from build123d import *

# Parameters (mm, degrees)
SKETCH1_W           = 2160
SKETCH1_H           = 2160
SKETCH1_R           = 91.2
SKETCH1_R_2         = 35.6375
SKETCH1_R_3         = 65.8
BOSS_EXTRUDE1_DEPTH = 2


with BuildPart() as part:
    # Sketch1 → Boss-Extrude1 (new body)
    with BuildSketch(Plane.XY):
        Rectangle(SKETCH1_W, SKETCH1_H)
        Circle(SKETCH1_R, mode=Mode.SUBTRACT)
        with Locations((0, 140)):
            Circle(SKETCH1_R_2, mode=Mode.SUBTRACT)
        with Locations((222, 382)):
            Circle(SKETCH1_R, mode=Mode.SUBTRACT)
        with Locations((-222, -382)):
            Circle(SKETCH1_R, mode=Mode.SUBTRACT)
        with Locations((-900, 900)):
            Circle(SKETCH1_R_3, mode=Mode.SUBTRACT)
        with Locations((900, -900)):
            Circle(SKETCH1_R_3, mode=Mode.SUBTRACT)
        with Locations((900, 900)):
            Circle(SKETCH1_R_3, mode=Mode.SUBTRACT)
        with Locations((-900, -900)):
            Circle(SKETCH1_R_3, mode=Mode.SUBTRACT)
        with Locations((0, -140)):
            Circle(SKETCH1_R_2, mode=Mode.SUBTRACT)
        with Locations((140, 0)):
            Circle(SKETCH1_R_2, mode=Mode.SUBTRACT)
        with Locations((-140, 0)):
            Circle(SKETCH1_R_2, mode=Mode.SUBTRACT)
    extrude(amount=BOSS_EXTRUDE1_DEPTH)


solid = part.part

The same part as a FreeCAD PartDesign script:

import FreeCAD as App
import Part
import Sketcher
from FreeCAD import Vector


def add_polygon(sketch, points):
    """Adds a closed chain of lines whose ends are joined by coincident constraints."""
    first, n = sketch.GeometryCount, len(points)
    for a, b in zip(points, points[1:] + points[:1]):
        sketch.addGeometry(Part.LineSegment(App.Vector(*a, 0), App.Vector(*b, 0)), False)
    for i in range(n):
        sketch.addConstraint(Sketcher.Constraint("Coincident", first + i, 2, first + (i + 1) % n, 1))

doc = App.newDocument("Part")
body = doc.addObject("PartDesign::Body", "Body")

# Sketch on XY plane
sketch1 = body.newObject("Sketcher::SketchObject", "Sketch")
sketch1.AttachmentSupport = (doc.getObject("XY_Plane"), [""])
sketch1.MapMode = "FlatFace"
add_polygon(sketch1, [(-1080, 1080), (-1080, -1080), (1080, -1080), (1080, 1080)])  # lines 0-3
sketch1.addGeometry(Part.Circle(Vector(-900, -900, 0), Vector(0, 0, 1), 65.8), False)  # 4
sketch1.addGeometry(Part.Circle(Vector(-222, -382, 0), Vector(0, 0, 1), 91.2), False)  # 5
sketch1.addGeometry(Part.Circle(Vector(900, -900, 0), Vector(0, 0, 1), 65.8), False)  # 6
sketch1.addGeometry(Part.Circle(Vector(0, -140, 0), Vector(0, 0, 1), 35.6375), False)  # 7
sketch1.addGeometry(Part.Circle(Vector(-140, 0, 0), Vector(0, 0, 1), 35.6375), False)  # 8
sketch1.addGeometry(Part.Circle(Vector(-900, 900, 0), Vector(0, 0, 1), 65.8), False)  # 9
sketch1.addGeometry(Part.Circle(Vector(0, 0, 0), Vector(0, 0, 1), 91.2), False)  # 10
sketch1.addGeometry(Part.Circle(Vector(140, 0, 0), Vector(0, 0, 1), 35.6375), False)  # 11
sketch1.addGeometry(Part.Circle(Vector(0, 140, 0), Vector(0, 0, 1), 35.6375), False)  # 12
sketch1.addGeometry(Part.Circle(Vector(222, 382, 0), Vector(0, 0, 1), 91.2), False)  # 13
sketch1.addGeometry(Part.Circle(Vector(900, 900, 0), Vector(0, 0, 1), 65.8), False)  # 14
sketch1.addConstraint([
    Sketcher.Constraint("Vertical", 0),
    Sketcher.Constraint("Horizontal", 1),
    Sketcher.Constraint("Vertical", 2),
    Sketcher.Constraint("Horizontal", 3),
    Sketcher.Constraint("Coincident", 10, 3, -1, 1),
    Sketcher.Constraint("Equal", 4, 6),
    Sketcher.Constraint("Equal", 7, 8),
    Sketcher.Constraint("Equal", 6, 9),
    Sketcher.Constraint("Equal", 5, 10),
    Sketcher.Constraint("Equal", 8, 11),
    Sketcher.Constraint("Equal", 11, 12),
    Sketcher.Constraint("Equal", 10, 13),
    Sketcher.Constraint("Equal", 9, 14),
    Sketcher.Constraint("Symmetric", 6, 3, 9, 3, -1, 1),
    Sketcher.Constraint("Symmetric", 8, 3, 11, 3, -1, 1),
    Sketcher.Constraint("Symmetric", 7, 3, 12, 3, -1, 1),
    Sketcher.Constraint("Symmetric", 5, 3, 13, 3, -1, 1),
    Sketcher.Constraint("Symmetric", 4, 3, 14, 3, -1, 1),
    Sketcher.Constraint("Symmetric", 0, 2, 2, 2, -1, 1),
    Sketcher.Constraint("Symmetric", 4, 3, 6, 3, -2),
    Sketcher.Constraint("PointOnObject", 7, 3, -2),
    Sketcher.Constraint("PointOnObject", 8, 3, -1),
    Sketcher.Constraint("Equal", 3, 0),
    Sketcher.Constraint("Diameter", 4, 131.6),
    Sketcher.Constraint("Diameter", 5, 182.4),
    Sketcher.Constraint("DistanceX", 1, 1, 1, 2, 2160.0),
    Sketcher.Constraint("Diameter", 7, 71.275),
    Sketcher.Constraint("DistanceX", 4, 3, -1, 1, 900.0),
    Sketcher.Constraint("DistanceY", 4, 3, -1, 1, 900.0),
    Sketcher.Constraint("DistanceX", 5, 3, -1, 1, 222.0),
    Sketcher.Constraint("DistanceY", 5, 3, -1, 1, 382.0),
    Sketcher.Constraint("DistanceY", 7, 3, -1, 1, 140.0),
    Sketcher.Constraint("DistanceX", 8, 3, -1, 1, 140.0),
])
pad1 = body.newObject("PartDesign::Pad", "Pad")
pad1.Profile = sketch1
pad1.Length = 2

doc.recompute()
